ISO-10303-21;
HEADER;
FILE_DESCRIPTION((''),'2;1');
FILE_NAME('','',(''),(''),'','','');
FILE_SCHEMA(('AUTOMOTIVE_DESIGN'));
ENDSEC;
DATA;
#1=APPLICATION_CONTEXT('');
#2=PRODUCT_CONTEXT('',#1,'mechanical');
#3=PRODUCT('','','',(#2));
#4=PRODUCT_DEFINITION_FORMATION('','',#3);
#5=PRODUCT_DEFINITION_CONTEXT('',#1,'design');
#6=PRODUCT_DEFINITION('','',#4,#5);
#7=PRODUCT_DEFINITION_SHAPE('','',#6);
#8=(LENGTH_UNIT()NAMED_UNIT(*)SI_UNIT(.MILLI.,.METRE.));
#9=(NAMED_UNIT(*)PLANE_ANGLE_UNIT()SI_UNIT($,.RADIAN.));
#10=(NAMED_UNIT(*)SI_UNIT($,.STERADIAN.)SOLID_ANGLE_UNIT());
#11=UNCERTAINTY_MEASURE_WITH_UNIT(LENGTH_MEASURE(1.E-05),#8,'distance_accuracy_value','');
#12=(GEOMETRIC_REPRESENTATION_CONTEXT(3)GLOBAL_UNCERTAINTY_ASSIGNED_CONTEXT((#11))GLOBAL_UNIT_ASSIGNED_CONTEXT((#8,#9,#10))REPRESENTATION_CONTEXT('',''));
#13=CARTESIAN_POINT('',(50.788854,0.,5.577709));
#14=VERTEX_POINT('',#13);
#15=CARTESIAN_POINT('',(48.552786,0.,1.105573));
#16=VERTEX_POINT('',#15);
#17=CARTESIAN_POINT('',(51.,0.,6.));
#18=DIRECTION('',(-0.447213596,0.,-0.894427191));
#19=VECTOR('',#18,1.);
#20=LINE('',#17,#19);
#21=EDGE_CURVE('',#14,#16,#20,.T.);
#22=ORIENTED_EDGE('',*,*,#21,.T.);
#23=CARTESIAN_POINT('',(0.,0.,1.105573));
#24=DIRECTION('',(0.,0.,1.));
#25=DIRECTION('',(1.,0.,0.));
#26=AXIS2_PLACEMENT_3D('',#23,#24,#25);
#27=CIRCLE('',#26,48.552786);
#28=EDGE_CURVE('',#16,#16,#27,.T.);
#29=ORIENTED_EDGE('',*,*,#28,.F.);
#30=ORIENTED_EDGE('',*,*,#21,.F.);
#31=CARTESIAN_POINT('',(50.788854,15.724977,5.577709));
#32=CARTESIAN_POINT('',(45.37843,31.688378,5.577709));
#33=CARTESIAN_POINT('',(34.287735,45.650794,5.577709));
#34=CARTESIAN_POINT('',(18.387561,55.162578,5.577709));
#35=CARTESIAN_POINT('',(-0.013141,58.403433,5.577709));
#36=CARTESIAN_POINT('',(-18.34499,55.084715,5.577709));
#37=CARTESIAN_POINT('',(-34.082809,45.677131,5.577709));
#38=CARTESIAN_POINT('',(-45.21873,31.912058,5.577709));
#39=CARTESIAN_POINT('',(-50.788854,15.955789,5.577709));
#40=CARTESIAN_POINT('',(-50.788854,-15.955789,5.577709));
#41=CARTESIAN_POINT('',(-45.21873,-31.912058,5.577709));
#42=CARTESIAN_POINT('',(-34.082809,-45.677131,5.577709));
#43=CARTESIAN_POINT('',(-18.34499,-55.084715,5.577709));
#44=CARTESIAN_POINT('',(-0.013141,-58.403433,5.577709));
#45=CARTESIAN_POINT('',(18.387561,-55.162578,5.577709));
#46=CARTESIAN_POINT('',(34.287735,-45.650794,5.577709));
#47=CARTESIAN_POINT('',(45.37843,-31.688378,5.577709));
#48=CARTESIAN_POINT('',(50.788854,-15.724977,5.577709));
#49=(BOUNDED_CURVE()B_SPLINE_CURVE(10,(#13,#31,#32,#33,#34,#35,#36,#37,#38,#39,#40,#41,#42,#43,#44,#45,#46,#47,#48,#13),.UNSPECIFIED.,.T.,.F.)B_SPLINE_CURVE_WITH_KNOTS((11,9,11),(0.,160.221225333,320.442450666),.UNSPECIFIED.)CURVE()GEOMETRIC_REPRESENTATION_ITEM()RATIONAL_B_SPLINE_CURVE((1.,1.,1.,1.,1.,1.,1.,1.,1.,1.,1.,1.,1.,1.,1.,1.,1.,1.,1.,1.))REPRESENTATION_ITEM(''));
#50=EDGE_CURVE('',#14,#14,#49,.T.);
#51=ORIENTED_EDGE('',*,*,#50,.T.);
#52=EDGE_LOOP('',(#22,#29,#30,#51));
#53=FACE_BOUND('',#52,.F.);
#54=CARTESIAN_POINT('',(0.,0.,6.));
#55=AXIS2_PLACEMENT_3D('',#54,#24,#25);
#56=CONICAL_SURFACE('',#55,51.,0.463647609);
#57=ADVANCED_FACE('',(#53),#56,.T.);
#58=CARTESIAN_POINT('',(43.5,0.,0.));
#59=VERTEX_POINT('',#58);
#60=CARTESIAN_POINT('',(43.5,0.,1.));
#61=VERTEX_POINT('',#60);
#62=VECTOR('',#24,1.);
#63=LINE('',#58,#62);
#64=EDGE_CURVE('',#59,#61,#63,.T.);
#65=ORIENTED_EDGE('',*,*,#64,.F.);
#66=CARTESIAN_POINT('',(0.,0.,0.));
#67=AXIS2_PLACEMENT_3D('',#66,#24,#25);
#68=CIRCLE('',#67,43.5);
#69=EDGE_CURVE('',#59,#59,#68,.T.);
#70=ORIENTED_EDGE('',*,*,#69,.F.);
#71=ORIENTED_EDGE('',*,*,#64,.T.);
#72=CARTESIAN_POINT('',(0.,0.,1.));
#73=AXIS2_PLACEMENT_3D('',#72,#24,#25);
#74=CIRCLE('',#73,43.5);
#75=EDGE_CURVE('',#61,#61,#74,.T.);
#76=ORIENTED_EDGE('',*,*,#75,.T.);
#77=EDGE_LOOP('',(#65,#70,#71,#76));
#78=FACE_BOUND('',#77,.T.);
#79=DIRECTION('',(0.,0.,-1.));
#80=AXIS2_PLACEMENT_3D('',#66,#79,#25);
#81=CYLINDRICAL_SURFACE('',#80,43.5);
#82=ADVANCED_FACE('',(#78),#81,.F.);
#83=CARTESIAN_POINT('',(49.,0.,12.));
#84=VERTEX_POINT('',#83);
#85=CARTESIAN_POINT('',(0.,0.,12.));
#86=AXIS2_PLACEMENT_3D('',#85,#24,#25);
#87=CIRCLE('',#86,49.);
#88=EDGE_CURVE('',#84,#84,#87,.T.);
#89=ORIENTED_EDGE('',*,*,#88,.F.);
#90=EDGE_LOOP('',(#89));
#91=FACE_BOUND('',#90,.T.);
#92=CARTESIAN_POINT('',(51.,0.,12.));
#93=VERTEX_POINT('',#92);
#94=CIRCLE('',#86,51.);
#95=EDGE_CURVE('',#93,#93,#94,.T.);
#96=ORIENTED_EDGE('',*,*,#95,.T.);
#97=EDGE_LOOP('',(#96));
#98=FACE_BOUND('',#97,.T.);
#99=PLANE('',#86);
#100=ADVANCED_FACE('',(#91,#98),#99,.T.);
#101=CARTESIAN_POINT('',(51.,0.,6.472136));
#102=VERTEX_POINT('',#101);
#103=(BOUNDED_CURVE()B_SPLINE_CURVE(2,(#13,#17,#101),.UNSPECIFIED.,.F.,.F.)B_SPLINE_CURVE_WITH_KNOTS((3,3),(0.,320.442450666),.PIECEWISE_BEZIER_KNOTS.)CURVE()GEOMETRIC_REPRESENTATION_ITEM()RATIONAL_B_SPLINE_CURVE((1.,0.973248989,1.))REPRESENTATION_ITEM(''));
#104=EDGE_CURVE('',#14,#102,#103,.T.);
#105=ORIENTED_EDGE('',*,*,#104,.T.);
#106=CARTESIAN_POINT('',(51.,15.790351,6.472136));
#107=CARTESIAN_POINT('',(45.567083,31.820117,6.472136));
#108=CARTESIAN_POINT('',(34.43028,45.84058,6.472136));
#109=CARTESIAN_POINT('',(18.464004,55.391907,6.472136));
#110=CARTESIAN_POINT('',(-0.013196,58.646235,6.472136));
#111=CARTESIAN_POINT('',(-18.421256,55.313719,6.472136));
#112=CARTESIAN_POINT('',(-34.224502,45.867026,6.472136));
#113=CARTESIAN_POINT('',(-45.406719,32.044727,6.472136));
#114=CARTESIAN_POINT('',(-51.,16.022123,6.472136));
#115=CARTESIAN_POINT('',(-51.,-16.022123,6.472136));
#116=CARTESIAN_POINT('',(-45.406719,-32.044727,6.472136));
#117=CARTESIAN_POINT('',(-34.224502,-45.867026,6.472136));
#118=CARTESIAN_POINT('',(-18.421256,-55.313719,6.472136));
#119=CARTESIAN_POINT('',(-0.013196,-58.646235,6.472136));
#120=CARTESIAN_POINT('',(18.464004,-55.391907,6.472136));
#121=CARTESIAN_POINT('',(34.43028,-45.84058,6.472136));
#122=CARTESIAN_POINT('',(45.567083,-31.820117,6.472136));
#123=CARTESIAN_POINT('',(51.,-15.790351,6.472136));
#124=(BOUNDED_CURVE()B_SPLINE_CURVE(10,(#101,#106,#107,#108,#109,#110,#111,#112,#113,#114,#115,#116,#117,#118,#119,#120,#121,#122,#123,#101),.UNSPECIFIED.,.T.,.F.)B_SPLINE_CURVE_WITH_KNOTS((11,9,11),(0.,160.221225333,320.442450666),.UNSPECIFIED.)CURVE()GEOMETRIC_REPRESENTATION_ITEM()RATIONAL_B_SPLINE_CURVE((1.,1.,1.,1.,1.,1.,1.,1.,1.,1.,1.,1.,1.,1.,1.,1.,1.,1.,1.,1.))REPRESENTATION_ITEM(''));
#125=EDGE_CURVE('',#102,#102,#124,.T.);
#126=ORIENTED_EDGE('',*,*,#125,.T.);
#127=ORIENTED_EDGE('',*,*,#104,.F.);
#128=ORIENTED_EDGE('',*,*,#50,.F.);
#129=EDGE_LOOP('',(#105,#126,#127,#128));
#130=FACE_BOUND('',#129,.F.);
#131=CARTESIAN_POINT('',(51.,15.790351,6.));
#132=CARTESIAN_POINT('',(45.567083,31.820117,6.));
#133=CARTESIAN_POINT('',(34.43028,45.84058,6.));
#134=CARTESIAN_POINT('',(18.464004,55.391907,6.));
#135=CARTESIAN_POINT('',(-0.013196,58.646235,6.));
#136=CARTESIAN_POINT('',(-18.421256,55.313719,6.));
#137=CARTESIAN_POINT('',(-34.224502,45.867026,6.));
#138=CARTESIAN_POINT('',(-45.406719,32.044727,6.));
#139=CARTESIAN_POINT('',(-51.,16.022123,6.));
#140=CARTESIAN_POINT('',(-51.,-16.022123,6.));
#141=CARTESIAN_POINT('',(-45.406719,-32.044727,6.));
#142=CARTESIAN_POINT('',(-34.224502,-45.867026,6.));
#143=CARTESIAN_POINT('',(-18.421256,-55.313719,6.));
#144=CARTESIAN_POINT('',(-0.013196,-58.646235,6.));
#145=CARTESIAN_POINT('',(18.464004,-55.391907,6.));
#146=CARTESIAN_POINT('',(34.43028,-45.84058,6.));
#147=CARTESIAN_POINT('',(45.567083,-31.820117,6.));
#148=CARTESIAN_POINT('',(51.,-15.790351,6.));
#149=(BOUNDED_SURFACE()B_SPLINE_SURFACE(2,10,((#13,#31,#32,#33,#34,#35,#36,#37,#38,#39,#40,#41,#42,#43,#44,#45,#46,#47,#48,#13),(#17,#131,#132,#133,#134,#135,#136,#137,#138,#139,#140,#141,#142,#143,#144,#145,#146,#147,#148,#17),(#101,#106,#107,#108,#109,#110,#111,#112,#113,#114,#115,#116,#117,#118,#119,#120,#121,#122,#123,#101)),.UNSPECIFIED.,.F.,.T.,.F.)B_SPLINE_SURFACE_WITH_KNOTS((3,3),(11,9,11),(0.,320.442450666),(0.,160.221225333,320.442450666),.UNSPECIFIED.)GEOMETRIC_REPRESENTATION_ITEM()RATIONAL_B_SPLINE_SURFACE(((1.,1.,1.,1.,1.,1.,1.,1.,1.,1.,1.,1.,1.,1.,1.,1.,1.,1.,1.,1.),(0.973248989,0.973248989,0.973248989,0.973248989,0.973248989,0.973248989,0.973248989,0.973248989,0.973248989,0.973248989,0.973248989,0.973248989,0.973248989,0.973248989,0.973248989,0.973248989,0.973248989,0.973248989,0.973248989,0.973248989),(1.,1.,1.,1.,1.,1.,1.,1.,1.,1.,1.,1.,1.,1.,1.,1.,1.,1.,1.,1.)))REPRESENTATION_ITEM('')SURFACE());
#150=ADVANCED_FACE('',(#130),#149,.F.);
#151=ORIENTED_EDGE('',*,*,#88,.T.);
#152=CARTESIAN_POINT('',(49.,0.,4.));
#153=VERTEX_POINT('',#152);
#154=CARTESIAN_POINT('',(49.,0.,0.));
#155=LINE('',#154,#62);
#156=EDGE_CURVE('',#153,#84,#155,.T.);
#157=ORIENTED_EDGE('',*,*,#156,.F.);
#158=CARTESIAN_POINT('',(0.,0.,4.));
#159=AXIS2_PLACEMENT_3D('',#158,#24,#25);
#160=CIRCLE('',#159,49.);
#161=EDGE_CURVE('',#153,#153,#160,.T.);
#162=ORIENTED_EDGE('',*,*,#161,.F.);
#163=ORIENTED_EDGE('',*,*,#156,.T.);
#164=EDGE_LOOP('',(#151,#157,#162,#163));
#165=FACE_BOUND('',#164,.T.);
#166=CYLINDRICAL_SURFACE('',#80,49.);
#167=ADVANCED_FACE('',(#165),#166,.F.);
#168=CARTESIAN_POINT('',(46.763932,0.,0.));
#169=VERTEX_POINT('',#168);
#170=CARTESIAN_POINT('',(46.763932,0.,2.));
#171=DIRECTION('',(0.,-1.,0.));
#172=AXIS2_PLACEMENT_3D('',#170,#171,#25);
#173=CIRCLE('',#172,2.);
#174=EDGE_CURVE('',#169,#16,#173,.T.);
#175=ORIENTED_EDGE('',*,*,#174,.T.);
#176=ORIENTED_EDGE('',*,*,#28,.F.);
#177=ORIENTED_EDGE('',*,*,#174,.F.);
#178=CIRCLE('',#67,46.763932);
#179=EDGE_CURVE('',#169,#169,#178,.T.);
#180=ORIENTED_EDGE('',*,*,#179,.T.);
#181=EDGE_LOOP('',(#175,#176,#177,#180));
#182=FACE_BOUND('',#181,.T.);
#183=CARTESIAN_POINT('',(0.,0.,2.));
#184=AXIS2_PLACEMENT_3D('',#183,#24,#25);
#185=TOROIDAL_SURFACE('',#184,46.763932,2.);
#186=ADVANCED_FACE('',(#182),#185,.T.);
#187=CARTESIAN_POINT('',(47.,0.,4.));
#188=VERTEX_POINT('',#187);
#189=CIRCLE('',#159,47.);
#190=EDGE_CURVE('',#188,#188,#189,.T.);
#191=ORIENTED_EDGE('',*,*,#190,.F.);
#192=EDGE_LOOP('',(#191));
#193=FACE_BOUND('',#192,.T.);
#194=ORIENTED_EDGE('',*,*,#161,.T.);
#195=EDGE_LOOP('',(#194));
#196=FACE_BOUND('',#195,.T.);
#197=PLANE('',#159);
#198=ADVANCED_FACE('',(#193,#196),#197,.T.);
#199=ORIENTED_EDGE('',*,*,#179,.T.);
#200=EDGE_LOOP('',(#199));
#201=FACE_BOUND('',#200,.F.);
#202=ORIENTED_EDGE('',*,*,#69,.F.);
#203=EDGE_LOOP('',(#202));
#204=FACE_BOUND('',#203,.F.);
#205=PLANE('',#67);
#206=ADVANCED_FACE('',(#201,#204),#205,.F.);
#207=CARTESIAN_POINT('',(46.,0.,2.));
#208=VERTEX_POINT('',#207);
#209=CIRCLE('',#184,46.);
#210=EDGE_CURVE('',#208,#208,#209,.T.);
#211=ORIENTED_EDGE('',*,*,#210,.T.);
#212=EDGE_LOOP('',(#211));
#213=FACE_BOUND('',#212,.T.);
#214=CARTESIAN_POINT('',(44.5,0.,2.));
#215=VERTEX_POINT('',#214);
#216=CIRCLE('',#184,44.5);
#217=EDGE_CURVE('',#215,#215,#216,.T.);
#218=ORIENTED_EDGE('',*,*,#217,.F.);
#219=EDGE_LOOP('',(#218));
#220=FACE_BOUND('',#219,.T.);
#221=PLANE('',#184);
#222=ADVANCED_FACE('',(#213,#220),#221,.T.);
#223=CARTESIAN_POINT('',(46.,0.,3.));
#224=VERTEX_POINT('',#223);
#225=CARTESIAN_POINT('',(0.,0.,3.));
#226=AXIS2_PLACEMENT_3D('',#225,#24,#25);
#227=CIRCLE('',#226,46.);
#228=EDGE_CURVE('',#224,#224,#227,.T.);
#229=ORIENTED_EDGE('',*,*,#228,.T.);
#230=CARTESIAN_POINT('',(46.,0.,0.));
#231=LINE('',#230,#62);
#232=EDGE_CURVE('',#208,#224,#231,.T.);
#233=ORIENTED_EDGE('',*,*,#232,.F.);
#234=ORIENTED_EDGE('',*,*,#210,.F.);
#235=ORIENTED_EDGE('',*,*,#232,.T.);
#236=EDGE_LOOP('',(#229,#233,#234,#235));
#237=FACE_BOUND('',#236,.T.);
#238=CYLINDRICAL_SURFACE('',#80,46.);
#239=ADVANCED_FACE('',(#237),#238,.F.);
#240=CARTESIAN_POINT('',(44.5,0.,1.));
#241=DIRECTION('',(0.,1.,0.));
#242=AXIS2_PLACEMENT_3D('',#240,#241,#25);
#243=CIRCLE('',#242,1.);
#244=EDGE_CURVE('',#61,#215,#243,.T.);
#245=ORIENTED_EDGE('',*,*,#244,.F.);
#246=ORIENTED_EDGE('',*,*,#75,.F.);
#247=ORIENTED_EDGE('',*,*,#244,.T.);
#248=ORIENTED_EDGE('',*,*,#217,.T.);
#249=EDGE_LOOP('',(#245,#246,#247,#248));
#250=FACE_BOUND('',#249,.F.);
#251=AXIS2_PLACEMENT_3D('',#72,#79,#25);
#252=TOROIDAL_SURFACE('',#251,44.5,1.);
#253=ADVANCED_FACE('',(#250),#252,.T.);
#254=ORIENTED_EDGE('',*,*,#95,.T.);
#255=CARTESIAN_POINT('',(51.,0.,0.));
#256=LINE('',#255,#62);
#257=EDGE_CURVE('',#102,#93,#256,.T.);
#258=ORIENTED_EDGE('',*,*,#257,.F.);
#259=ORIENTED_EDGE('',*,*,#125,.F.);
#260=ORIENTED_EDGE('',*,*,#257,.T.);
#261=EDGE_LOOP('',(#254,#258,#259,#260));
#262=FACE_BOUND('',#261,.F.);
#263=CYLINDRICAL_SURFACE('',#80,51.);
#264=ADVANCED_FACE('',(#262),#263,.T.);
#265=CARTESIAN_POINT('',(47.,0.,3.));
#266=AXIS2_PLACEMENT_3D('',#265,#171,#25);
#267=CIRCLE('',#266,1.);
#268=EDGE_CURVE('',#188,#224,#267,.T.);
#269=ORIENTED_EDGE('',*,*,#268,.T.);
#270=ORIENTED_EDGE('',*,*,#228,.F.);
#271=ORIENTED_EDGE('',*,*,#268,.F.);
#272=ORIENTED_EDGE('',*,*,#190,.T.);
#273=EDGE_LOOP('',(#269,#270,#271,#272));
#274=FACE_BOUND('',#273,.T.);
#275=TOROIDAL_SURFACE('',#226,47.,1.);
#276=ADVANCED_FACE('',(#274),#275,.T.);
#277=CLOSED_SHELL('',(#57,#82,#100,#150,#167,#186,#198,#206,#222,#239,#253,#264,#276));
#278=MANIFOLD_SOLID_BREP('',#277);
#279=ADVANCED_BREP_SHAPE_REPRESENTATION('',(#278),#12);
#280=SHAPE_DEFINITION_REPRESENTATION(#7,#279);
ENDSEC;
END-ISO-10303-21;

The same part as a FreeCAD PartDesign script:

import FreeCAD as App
import Part
import Sketcher
from FreeCAD import Vector


def edges_at(feature, points):
    """Names of the edges that pass closest to the given points."""
    edges = feature.Shape.Edges
    near = lambda p: min(range(len(edges)), key=lambda i: edges[i].distToShape(Part.Vertex(*p))[0])
    return sorted({f"Edge{near(p) + 1}" for p in points})

doc = App.newDocument("Part")
body = doc.addObject("PartDesign::Body", "Body")

# Sketch on XY plane
sketch1 = body.newObject("Sketcher::SketchObject", "Sketch")
sketch1.AttachmentSupport = (doc.getObject("XY_Plane"), [""])
sketch1.MapMode = "FlatFace"
sketch1.addGeometry(Part.Circle(Vector(0, 0, 0), Vector(0, 0, 1), 46), False)
sketch1.addGeometry(Part.Circle(Vector(0, 0, 0), Vector(0, 0, 1), 43.5), False)
sketch1.addConstraint(Sketcher.Constraint("Coincident", 0, 3, -1, 1))
sketch1.addConstraint(Sketcher.Constraint("Coincident", 1, 3, -1, 1))
sketch1.addConstraint(Sketcher.Constraint("Diameter", 0, 92.0))
sketch1.addConstraint(Sketcher.Constraint("Diameter", 1, 87.0))
pad1 = body.newObject("PartDesign::Pad", "Pad")
pad1.Profile = sketch1
pad1.Length = 2

# Sketch on XY plane
sketch2 = body.newObject("Sketcher::SketchObject", "Sketch001")
sketch2.AttachmentSupport = (doc.getObject("XY_Plane"), [""])
sketch2.MapMode = "FlatFace"
sketch2.addGeometry(Part.Circle(Vector(0, 0, 0), Vector(0, 0, 1), 49), False)
sketch2.addGeometry(Part.Circle(Vector(0, 0, 0), Vector(0, 0, 1), 46), False)
sketch2.addConstraint(Sketcher.Constraint("Coincident", 0, 3, -1, 1))
sketch2.addConstraint(Sketcher.Constraint("Coincident", 1, 3, -1, 1))
sketch2.addConstraint(Sketcher.Constraint("Diameter", 0, 98.0))
sketch2.addConstraint(Sketcher.Constraint("Diameter", 1, 92.0))
pad2 = body.newObject("PartDesign::Pad", "Pad001")
pad2.Profile = sketch2
pad2.Length = 4

# Sketch on XY plane
sketch3 = body.newObject("Sketcher::SketchObject", "Sketch002")
sketch3.AttachmentSupport = (doc.getObject("XY_Plane"), [""])
sketch3.MapMode = "FlatFace"
sketch3.addGeometry(Part.Circle(Vector(0, 0, 0), Vector(0, 0, 1), 51), False)
sketch3.addGeometry(Part.Circle(Vector(0, 0, 0), Vector(0, 0, 1), 49), False)
sketch3.addConstraint(Sketcher.Constraint("Coincident", 0, 3, -1, 1))
sketch3.addConstraint(Sketcher.Constraint("Coincident", 1, 3, -1, 1))
sketch3.addConstraint(Sketcher.Constraint("Diameter", 0, 102.0))
sketch3.addConstraint(Sketcher.Constraint("Diameter", 1, 98.0))
pad3 = body.newObject("PartDesign::Pad", "Pad002")
pad3.Profile = sketch3
pad3.Length = 12
doc.recompute()

fillet = body.newObject("PartDesign::Fillet", "Fillet")
fillet.Base = (pad3, edges_at(pad3, [(-43.5, 0, 2), (-46, 0, 4)]))
fillet.Radius = 1
doc.recompute()

chamfer = body.newObject("PartDesign::Chamfer", "Chamfer")
chamfer.Base = (fillet, edges_at(fillet, [(-51, 0, 0)]))
chamfer.ChamferType = "Two distances"
chamfer.Size = 6
chamfer.Size2 = 3
doc.recompute()

fillet2 = body.newObject("PartDesign::Fillet", "Fillet001")
fillet2.Base = (chamfer, edges_at(chamfer, [(-51, 0, 6), (49.5, 0, 3), (-48, 0, 0)]))
fillet2.Radius = 2

doc.recompute()
